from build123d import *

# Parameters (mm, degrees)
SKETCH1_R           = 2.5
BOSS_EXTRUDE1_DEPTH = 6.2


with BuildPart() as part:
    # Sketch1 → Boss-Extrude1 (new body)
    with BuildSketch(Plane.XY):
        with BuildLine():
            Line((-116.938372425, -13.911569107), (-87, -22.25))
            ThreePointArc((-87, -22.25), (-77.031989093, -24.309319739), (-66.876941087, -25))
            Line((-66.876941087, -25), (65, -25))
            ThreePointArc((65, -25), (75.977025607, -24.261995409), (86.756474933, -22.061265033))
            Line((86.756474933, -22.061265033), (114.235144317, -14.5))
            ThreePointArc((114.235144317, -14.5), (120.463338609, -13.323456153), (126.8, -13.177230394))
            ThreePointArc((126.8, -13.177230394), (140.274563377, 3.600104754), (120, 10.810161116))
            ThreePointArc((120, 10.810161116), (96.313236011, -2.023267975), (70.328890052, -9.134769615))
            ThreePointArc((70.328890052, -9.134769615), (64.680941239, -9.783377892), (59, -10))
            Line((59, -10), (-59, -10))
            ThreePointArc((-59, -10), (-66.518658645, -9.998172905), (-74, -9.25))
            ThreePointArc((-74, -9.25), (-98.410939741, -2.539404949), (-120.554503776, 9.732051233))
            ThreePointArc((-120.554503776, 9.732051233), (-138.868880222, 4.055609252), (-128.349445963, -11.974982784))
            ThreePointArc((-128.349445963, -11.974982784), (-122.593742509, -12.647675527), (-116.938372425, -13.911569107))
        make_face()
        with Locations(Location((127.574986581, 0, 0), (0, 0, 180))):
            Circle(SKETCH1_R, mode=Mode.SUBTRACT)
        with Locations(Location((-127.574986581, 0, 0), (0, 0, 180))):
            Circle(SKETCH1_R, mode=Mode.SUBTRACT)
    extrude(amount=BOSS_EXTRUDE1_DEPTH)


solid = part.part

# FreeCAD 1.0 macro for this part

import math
import FreeCAD as App
import Part
import Sketcher
from FreeCAD import Vector
Q = App.Units.Quantity

doc = App.newDocument("Part")
body = doc.addObject("PartDesign::Body", "Body")

sketch1 = body.newObject("Sketcher::SketchObject", "Sketch")
sketch1.AttachmentSupport = (doc.getObject("XY_Plane"), [""])
sketch1.MapMode = "FlatFace"
sketch1.addGeometry(Part.LineSegment(Vector(-116.938372, -13.911569, 0), Vector(-87, -22.25, 0)), False)
sketch1.addGeometry(Part.ArcOfCircle(Part.Circle(Vector(-66.876941, 50, 0), Vector(0, 0, 1), 75), math.radians(-105.563575), math.radians(-90)), False)
sketch1.addGeometry(Part.LineSegment(Vector(-66.876941, -25, 0), Vector(65, -25, 0)), False)
sketch1.addGeometry(Part.ArcOfCircle(Part.Circle(Vector(65, 57.004735, 0), Vector(0, 0, 1), 82.004735), math.radians(-90), math.radians(-74.614772)), False)
sketch1.addGeometry(Part.LineSegment(Vector(86.756475, -22.061265, 0), Vector(114.235144, -14.5, 0)), False)
sketch1.addGeometry(Part.ArcOfCircle(Part.Circle(Vector(124.52329, -51.888525, 0), Vector(0, 0, 1), 38.778187), math.radians(86.634166), math.radians(105.385228)), False)
sketch1.addGeometry(Part.ArcOfCircle(Part.Circle(Vector(127.574987, 0, 0), Vector(0, 0, 1), 13.2), math.radians(-93.365834), math.radians(125.020019)), False)
sketch1.addGeometry(Part.ArcOfCircle(Part.Circle(Vector(52.454176, 107.203895, 0), Vector(0, 0, 1), 117.703825), math.radians(-81.265164), math.radians(-54.979981)), False)
sketch1.addGeometry(Part.ArcOfCircle(Part.Circle(Vector(59, 64.6, 0), Vector(0, 0, 1), 74.6), math.radians(-90), math.radians(-81.265164)), False)
sketch1.addGeometry(Part.LineSegment(Vector(59, -10, 0), Vector(-59, -10, 0)), False)
sketch1.addGeometry(Part.ArcOfCircle(Part.Circle(Vector(-62.740969, 65.555622, 0), Vector(0, 0, 1), 75.648178), math.radians(-98.559369), math.radians(-87.165441)), False)
sketch1.addGeometry(Part.ArcOfCircle(Part.Circle(Vector(-58.115538, 96.28724, 0), Vector(0, 0, 1), 106.725935), math.radians(-125.805832), math.radians(-98.559369)), False)
sketch1.addGeometry(Part.ArcOfCircle(Part.Circle(Vector(-127.574987, 0, 0), Vector(0, 0, 1), 12), math.radians(54.194168), math.radians(266.299657)), False)
sketch1.addGeometry(Part.ArcOfCircle(Part.Circle(Vector(-131.96359, -67.858236, 0), Vector(0, 0, 1), 56), math.radians(74.436425), math.radians(86.299657)), False)
sketch1.addGeometry(Part.Circle(Vector(-127.574987, 0, 0), Vector(0, 0, 1), 2.5), False)
sketch1.addGeometry(Part.Circle(Vector(127.574987, 0, 0), Vector(0, 0, 1), 2.5), False)
sketch1.addConstraint(Sketcher.Constraint("Coincident", 0, 2, 1, 1))
sketch1.addConstraint(Sketcher.Constraint("Coincident", 1, 2, 2, 1))
sketch1.addConstraint(Sketcher.Constraint("Coincident", 2, 2, 3, 1))
sketch1.addConstraint(Sketcher.Constraint("Coincident", 3, 2, 4, 1))
sketch1.addConstraint(Sketcher.Constraint("Coincident", 4, 2, 5, 2))
sketch1.addConstraint(Sketcher.Constraint("Coincident", 5, 1, 6, 1))
sketch1.addConstraint(Sketcher.Constraint("Coincident", 6, 2, 7, 2))
sketch1.addConstraint(Sketcher.Constraint("Coincident", 7, 1, 8, 2))
sketch1.addConstraint(Sketcher.Constraint("Coincident", 8, 1, 9, 1))
sketch1.addConstraint(Sketcher.Constraint("Coincident", 9, 2, 10, 2))
sketch1.addConstraint(Sketcher.Constraint("Coincident", 10, 1, 11, 2))
sketch1.addConstraint(Sketcher.Constraint("Coincident", 11, 1, 12, 1))
sketch1.addConstraint(Sketcher.Constraint("Coincident", 12, 2, 13, 2))
sketch1.addConstraint(Sketcher.Constraint("Coincident", 13, 1, 0, 1))
sketch1.addConstraint(Sketcher.Constraint("Horizontal", 2))
sketch1.addConstraint(Sketcher.Constraint("Horizontal", 9))
sketch1.addConstraint(Sketcher.Constraint("Coincident", 14, 3, 12, 3))
sketch1.addConstraint(Sketcher.Constraint("Coincident", 15, 3, 6, 3))
sketch1.addConstraint(Sketcher.Constraint("PointOnObject", 6, 3, -1))
sketch1.addConstraint(Sketcher.Constraint("PointOnObject", 12, 3, -1))
sketch1.addConstraint(Sketcher.Constraint("Diameter", 14, Q("5 mm")))
sketch1.addConstraint(Sketcher.Constraint("Diameter", 15, Q("5 mm")))
sketch1.addConstraint(Sketcher.Constraint("Radius", 1, Q("75 mm")))
sketch1.addConstraint(Sketcher.Constraint("Radius", 12, Q("12 mm")))
sketch1.addConstraint(Sketcher.Constraint("Radius", 13, Q("56 mm")))
sketch1.addConstraint(Sketcher.Constraint("Radius", 6, Q("13.2 mm")))
sketch1.addConstraint(Sketcher.Constraint("Radius", 8, Q("74.6 mm")))
sketch1.addConstraint(Sketcher.Constraint("DistanceX", 9, 2, 9, 1, Q("118 mm")))
sketch1.addConstraint(Sketcher.Constraint("DistanceY", -1, 1, 1, 3, Q("50 mm")))
sketch1.addConstraint(Sketcher.Constraint("DistanceX", -1, 1, 3, 3, Q("65 mm")))
sketch1.addConstraint(Sketcher.Constraint("DistanceX", -1, 1, 8, 3, Q("59 mm")))
sketch1.addConstraint(Sketcher.Constraint("DistanceX", 0, 2, -1, 1, Q("87 mm")))
sketch1.addConstraint(Sketcher.Constraint("DistanceX", -1, 1, 2, 2, Q("65 mm")))
sketch1.addConstraint(Sketcher.Constraint("DistanceX", -1, 1, 6, 2, Q("120 mm")))
sketch1.addConstraint(Sketcher.Constraint("DistanceX", -1, 1, 8, 1, Q("59 mm")))
sketch1.addConstraint(Sketcher.Constraint("DistanceY", 8, 1, -1, 1, Q("10 mm")))
sketch1.addConstraint(Sketcher.Constraint("DistanceX", 10, 1, -1, 1, Q("74 mm")))
sketch1.addConstraint(Sketcher.Constraint("DistanceY", 0, 2, 10, 1, Q("13 mm")))
sketch1.addConstraint(Sketcher.Constraint("Distance", 4, Q("28.5 mm")))
sketch1.addConstraint(Sketcher.Constraint("DistanceY", 4, 2, -1, 1, Q("14.5 mm")))
sketch1.addConstraint(Sketcher.Constraint("DistanceX", -1, 1, 5, 1, Q("126.8 mm")))
sketch1.addConstraint(Sketcher.Constraint("DistanceY", 0, 2, -1, 1, Q("22.25 mm")))
sketch1.addConstraint(Sketcher.Constraint("Radius", 3, Q("82.004735 mm")))
sketch1.addConstraint(Sketcher.Constraint("Radius", 5, Q("38.778187 mm")))
sketch1.addConstraint(Sketcher.Constraint("Radius", 7, Q("117.703825 mm")))
sketch1.addConstraint(Sketcher.Constraint("Radius", 10, Q("75.648178 mm")))
sketch1.addConstraint(Sketcher.Constraint("Radius", 11, Q("106.725935 mm")))
sketch1.addConstraint(Sketcher.Constraint("DistanceY", 3, 2, 3, 3, Q("79.066 mm")))
sketch1.addConstraint(Sketcher.Constraint("DistanceX", 2, 1, 2, 2, Q("131.876941 mm")))
sketch1.addConstraint(Sketcher.Constraint("DistanceX", -1, 1, 5, 3, Q("124.52329 mm")))
sketch1.addConstraint(Sketcher.Constraint("DistanceY", -1, 1, 11, 3, Q("96.28724 mm")))
sketch1.addConstraint(Sketcher.Constraint("DistanceX", 13, 3, -1, 1, Q("131.96359 mm")))
sketch1.addConstraint(Sketcher.Constraint("DistanceX", -1, 1, 7, 1, Q("70.32889 mm")))
sketch1.addConstraint(Sketcher.Constraint("DistanceY", -1, 1, 11, 1, Q("9.732051 mm")))
sketch1.addConstraint(Sketcher.Constraint("DistanceY", 13, 1, -1, 1, Q("13.911569 mm")))
sketch1.addConstraint(Sketcher.Constraint("DistanceX", 12, 2, 14, 3, Q("0.774459 mm")))
pad1 = body.newObject("PartDesign::Pad", "Pad")
pad1.Profile = sketch1
pad1.Length = 6.2

doc.recompute()
